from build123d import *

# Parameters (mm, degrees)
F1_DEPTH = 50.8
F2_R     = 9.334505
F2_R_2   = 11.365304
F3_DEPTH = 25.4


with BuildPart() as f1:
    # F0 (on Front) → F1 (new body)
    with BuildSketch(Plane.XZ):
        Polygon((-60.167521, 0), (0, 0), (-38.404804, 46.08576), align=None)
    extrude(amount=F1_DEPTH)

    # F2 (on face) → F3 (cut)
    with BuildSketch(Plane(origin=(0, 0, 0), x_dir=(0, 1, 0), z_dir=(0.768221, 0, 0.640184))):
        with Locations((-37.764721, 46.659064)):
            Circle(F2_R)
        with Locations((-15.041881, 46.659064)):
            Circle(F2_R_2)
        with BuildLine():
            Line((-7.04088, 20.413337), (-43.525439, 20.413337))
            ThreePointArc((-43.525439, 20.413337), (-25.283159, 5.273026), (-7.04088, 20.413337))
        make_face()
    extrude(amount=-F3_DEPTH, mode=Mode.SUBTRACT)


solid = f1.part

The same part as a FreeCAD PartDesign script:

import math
import FreeCAD as App
import Part
import Sketcher
Q = App.Units.Quantity


def add_polygon(sketch, points):
    """Adds a closed chain of lines whose ends are joined by coincident constraints."""
    first, n = sketch.GeometryCount, len(points)
    for a, b in zip(points, points[1:] + points[:1]):
        sketch.addGeometry(Part.LineSegment(App.Vector(*a, 0), App.Vector(*b, 0)), False)
    for i in range(n):
        sketch.addConstraint(Sketcher.Constraint("Coincident", first + i, 2, first + (i + 1) % n, 1))

doc = App.newDocument("Part")
body = doc.addObject("PartDesign::Body", "Body")

sketch1 = doc.addObject("Sketcher::SketchObject", "Sketch")
body.addObject(sketch1)
sketch1.AttachmentSupport = (doc.XZ_Plane, [""])
sketch1.MapMode = "FlatFace"
add_polygon(sketch1, [(-60.167521, 0), (0, 0), (-38.404804, 46.08576)])
sketch1.addConstraint(Sketcher.Constraint("Horizontal", 0))
sketch1.addConstraint(Sketcher.Constraint("Coincident", 0, 2, -1, 1))
sketch1.addConstraint(Sketcher.Constraint("DistanceX", 0, 1, 0, 2, Q("2.3688 in")))
sketch1.addConstraint(Sketcher.Constraint("DistanceX", 1, 2, -1, 1, Q("1.5120002 in")))
sketch1.addConstraint(Sketcher.Constraint("DistanceY", -1, 1, 1, 2, Q("1.8144 in")))
pad1 = doc.addObject("PartDesign::Pad", "Pad")
body.addObject(pad1)
pad1.Profile = sketch1
pad1.Length = Q("2 in")

sketch2 = doc.addObject("Sketcher::SketchObject", "Sketch001")
body.addObject(sketch2)
sketch2.Placement = App.Placement(App.Vector(0, 0, 0), App.Rotation(App.Vector(0, 1, 0), App.Vector(-0.640184301, 0, 0.768221362), App.Vector(0.768221362, 0, 0.640184301), "ZXY"))
sketch2.addGeometry(Part.Circle(App.Vector(-37.764721, 46.659064, 0), App.Vector(0, 0, 1), 9.334505), False)
sketch2.addGeometry(Part.Circle(App.Vector(-15.041881, 46.659064, 0), App.Vector(0, 0, 1), 11.365304), False)
sketch2.addGeometry(Part.LineSegment(App.Vector(-7.04088, 20.413337, 0), App.Vector(-43.525439, 20.413337, 0)), False)
sketch2.addGeometry(Part.ArcOfCircle(Part.Circle(App.Vector(-25.28316, 23.833073, 0), App.Vector(0, 0, 1), 18.560047), math.radians(-169.382441), math.radians(-10.617559)), False)
sketch2.addConstraint(Sketcher.Constraint("Coincident", 2, 1, 3, 2))
sketch2.addConstraint(Sketcher.Constraint("Coincident", 3, 1, 2, 2))
sketch2.addConstraint(Sketcher.Constraint("Horizontal", 2))
sketch2.addConstraint(Sketcher.Constraint("Horizontal", 0, 3, 1, 3))
sketch2.addConstraint(Sketcher.Constraint("Diameter", 0, 18.66901))
sketch2.addConstraint(Sketcher.Constraint("Diameter", 1, 22.730608))
sketch2.addConstraint(Sketcher.Constraint("DistanceX", 2, 2, 2, 1, Q("1.4364 in")))
sketch2.addConstraint(Sketcher.Constraint("DistanceX", 1, 3, 2, 1, Q("0.315 in")))
sketch2.addConstraint(Sketcher.Constraint("DistanceX", 0, 3, -1, 1, Q("1.4868 in")))
sketch2.addConstraint(Sketcher.Constraint("DistanceX", 1, 3, -1, 1, Q("0.5922 in")))
sketch2.addConstraint(Sketcher.Constraint("Radius", 3, 18.560047))
sketch2.addConstraint(Sketcher.Constraint("DistanceY", 3, 3, 1, 3, 22.825991))
sketch2.addConstraint(Sketcher.Constraint("DistanceY", -1, 1, 0, 3, 46.659064))
pocket1 = doc.addObject("PartDesign::Pocket", "Pocket")
body.addObject(pocket1)
pocket1.Profile = sketch2
pocket1.Length = Q("1 in")

doc.recompute()
